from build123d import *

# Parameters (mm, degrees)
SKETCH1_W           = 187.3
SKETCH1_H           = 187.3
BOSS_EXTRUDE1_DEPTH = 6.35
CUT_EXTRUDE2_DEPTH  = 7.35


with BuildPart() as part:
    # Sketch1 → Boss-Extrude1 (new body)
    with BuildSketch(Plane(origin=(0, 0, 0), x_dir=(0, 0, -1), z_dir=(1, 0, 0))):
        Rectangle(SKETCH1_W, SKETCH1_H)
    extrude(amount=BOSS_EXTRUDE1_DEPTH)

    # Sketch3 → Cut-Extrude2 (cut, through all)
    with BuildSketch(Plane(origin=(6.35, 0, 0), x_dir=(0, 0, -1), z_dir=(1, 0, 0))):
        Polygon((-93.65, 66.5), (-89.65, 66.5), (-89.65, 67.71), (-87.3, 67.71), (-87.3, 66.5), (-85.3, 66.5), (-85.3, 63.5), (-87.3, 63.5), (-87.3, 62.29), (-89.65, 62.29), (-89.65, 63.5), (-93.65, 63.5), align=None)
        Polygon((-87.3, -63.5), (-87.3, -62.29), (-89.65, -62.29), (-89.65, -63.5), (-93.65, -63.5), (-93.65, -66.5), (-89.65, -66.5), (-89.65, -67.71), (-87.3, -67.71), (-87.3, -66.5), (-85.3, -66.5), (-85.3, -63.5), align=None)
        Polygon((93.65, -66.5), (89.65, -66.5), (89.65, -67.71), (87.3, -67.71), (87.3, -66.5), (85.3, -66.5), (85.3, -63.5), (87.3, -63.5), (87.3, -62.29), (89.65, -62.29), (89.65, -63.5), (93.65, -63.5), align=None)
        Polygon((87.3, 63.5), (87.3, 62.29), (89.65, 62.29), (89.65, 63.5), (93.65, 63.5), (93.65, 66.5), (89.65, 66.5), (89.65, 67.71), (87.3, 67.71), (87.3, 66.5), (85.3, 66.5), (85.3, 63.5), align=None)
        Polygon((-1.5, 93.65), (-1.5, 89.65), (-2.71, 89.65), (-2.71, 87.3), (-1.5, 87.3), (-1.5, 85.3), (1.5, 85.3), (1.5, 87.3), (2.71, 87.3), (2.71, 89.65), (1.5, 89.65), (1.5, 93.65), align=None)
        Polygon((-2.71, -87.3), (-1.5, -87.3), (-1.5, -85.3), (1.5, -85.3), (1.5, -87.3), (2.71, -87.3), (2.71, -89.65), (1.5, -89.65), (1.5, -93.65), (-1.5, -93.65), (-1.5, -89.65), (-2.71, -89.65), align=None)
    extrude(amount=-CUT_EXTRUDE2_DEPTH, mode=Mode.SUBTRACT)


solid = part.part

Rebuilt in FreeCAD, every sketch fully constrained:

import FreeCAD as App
import Part
import Sketcher
from FreeCAD import Vector
Q = App.Units.Quantity

doc = App.newDocument("Part")
body = doc.addObject("PartDesign::Body", "Body")

sketch1 = body.newObject("Sketcher::SketchObject", "Sketch")
sketch1.AttachmentSupport = (doc.getObject("YZ_Plane"), [""])
sketch1.MapMode = "FlatFace"
sketch1.addGeometry(Part.LineSegment(Vector(93.65, 93.65, 0), Vector(-93.65, 93.65, 0)), False)
sketch1.addGeometry(Part.LineSegment(Vector(-93.65, 93.65, 0), Vector(-93.65, -93.65, 0)), False)
sketch1.addGeometry(Part.LineSegment(Vector(-93.65, -93.65, 0), Vector(93.65, -93.65, 0)), False)
sketch1.addGeometry(Part.LineSegment(Vector(93.65, -93.65, 0), Vector(93.65, 93.65, 0)), False)
sketch1.addConstraint(Sketcher.Constraint("Coincident", 0, 2, 1, 1))
sketch1.addConstraint(Sketcher.Constraint("Coincident", 1, 2, 2, 1))
sketch1.addConstraint(Sketcher.Constraint("Coincident", 2, 2, 3, 1))
sketch1.addConstraint(Sketcher.Constraint("Coincident", 3, 2, 0, 1))
sketch1.addConstraint(Sketcher.Constraint("Horizontal", 0))
sketch1.addConstraint(Sketcher.Constraint("Vertical", 1))
sketch1.addConstraint(Sketcher.Constraint("Horizontal", 2))
sketch1.addConstraint(Sketcher.Constraint("Vertical", 3))
sketch1.addConstraint(Sketcher.Constraint("Symmetric", 0, 2, 2, 2, -1, 1))
sketch1.addConstraint(Sketcher.Constraint("Equal", 2, 1))
sketch1.addConstraint(Sketcher.Constraint("DistanceX", 0, 2, 0, 1, Q("187.3 mm")))
pad1 = body.newObject("PartDesign::Pad", "Pad")
pad1.Profile = sketch1
pad1.Length = 6.35

sketch2 = body.newObject("Sketcher::SketchObject", "Sketch001")
sketch2.AttachmentSupport = (doc.getObject("YZ_Plane"), [""])
sketch2.MapMode = "FlatFace"
sketch2.AttachmentOffset = App.Placement(Vector(0, 0, 6.35), App.Rotation())
sketch2.addGeometry(Part.LineSegment(Vector(66.5, 89.65, 0), Vector(66.5, 93.65, 0)), False)
sketch2.addGeometry(Part.LineSegment(Vector(66.5, 93.65, 0), Vector(63.5, 93.65, 0)), False)
sketch2.addGeometry(Part.LineSegment(Vector(63.5, 93.65, 0), Vector(63.5, 89.65, 0)), False)
sketch2.addGeometry(Part.LineSegment(Vector(63.5, 89.65, 0), Vector(62.29, 89.65, 0)), False)
sketch2.addGeometry(Part.LineSegment(Vector(62.29, 89.65, 0), Vector(62.29, 87.3, 0)), False)
sketch2.addGeometry(Part.LineSegment(Vector(62.29, 87.3, 0), Vector(63.5, 87.3, 0)), False)
sketch2.addGeometry(Part.LineSegment(Vector(63.5, 87.3, 0), Vector(63.5, 85.3, 0)), False)
sketch2.addGeometry(Part.LineSegment(Vector(63.5, 85.3, 0), Vector(66.5, 85.3, 0)), False)
sketch2.addGeometry(Part.LineSegment(Vector(66.5, 85.3, 0), Vector(66.5, 87.3, 0)), False)
sketch2.addGeometry(Part.LineSegment(Vector(66.5, 87.3, 0), Vector(67.71, 87.3, 0)), False)
sketch2.addGeometry(Part.LineSegment(Vector(67.71, 87.3, 0), Vector(67.71, 89.65, 0)), False)
sketch2.addGeometry(Part.LineSegment(Vector(67.71, 89.65, 0), Vector(66.5, 89.65, 0)), False)
sketch2.addGeometry(Part.LineSegment(Vector(-63.5, 87.3, 0), Vector(-62.29, 87.3, 0)), False)
sketch2.addGeometry(Part.LineSegment(Vector(-62.29, 87.3, 0), Vector(-62.29, 89.65, 0)), False)
sketch2.addGeometry(Part.LineSegment(Vector(-62.29, 89.65, 0), Vector(-63.5, 89.65, 0)), False)
sketch2.addGeometry(Part.LineSegment(Vector(-63.5, 89.65, 0), Vector(-63.5, 93.65, 0)), False)
sketch2.addGeometry(Part.LineSegment(Vector(-63.5, 93.65, 0), Vector(-66.5, 93.65, 0)), False)
sketch2.addGeometry(Part.LineSegment(Vector(-66.5, 93.65, 0), Vector(-66.5, 89.65, 0)), False)
sketch2.addGeometry(Part.LineSegment(Vector(-66.5, 89.65, 0), Vector(-67.71, 89.65, 0)), False)
sketch2.addGeometry(Part.LineSegment(Vector(-67.71, 89.65, 0), Vector(-67.71, 87.3, 0)), False)
sketch2.addGeometry(Part.LineSegment(Vector(-67.71, 87.3, 0), Vector(-66.5, 87.3, 0)), False)
sketch2.addGeometry(Part.LineSegment(Vector(-66.5, 87.3, 0), Vector(-66.5, 85.3, 0)), False)
sketch2.addGeometry(Part.LineSegment(Vector(-66.5, 85.3, 0), Vector(-63.5, 85.3, 0)), False)
sketch2.addGeometry(Part.LineSegment(Vector(-63.5, 85.3, 0), Vector(-63.5, 87.3, 0)), False)
sketch2.addGeometry(Part.LineSegment(Vector(-66.5, -89.65, 0), Vector(-66.5, -93.65, 0)), False)
sketch2.addGeometry(Part.LineSegment(Vector(-66.5, -93.65, 0), Vector(-63.5, -93.65, 0)), False)
sketch2.addGeometry(Part.LineSegment(Vector(-63.5, -93.65, 0), Vector(-63.5, -89.65, 0)), False)
sketch2.addGeometry(Part.LineSegment(Vector(-63.5, -89.65, 0), Vector(-62.29, -89.65, 0)), False)
sketch2.addGeometry(Part.LineSegment(Vector(-62.29, -89.65, 0), Vector(-62.29, -87.3, 0)), False)
sketch2.addGeometry(Part.LineSegment(Vector(-62.29, -87.3, 0), Vector(-63.5, -87.3, 0)), False)
sketch2.addGeometry(Part.LineSegment(Vector(-63.5, -87.3, 0), Vector(-63.5, -85.3, 0)), False)
sketch2.addGeometry(Part.LineSegment(Vector(-63.5, -85.3, 0), Vector(-66.5, -85.3, 0)), False)
sketch2.addGeometry(Part.LineSegment(Vector(-66.5, -85.3, 0), Vector(-66.5, -87.3, 0)), False)
sketch2.addGeometry(Part.LineSegment(Vector(-66.5, -87.3, 0), Vector(-67.71, -87.3, 0)), False)
sketch2.addGeometry(Part.LineSegment(Vector(-67.71, -87.3, 0), Vector(-67.71, -89.65, 0)), False)
sketch2.addGeometry(Part.LineSegment(Vector(-67.71, -89.65, 0), Vector(-66.5, -89.65, 0)), False)
sketch2.addGeometry(Part.LineSegment(Vector(63.5, -87.3, 0), Vector(62.29, -87.3, 0)), False)
sketch2.addGeometry(Part.LineSegment(Vector(62.29, -87.3, 0), Vector(62.29, -89.65, 0)), False)
sketch2.addGeometry(Part.LineSegment(Vector(62.29, -89.65, 0), Vector(63.5, -89.65, 0)), False)
sketch2.addGeometry(Part.LineSegment(Vector(63.5, -89.65, 0), Vector(63.5, -93.65, 0)), False)
sketch2.addGeometry(Part.LineSegment(Vector(63.5, -93.65, 0), Vector(66.5, -93.65, 0)), False)
sketch2.addGeometry(Part.LineSegment(Vector(66.5, -93.65, 0), Vector(66.5, -89.65, 0)), False)
sketch2.addGeometry(Part.LineSegment(Vector(66.5, -89.65, 0), Vector(67.71, -89.65, 0)), False)
sketch2.addGeometry(Part.LineSegment(Vector(67.71, -89.65, 0), Vector(67.71, -87.3, 0)), False)
sketch2.addGeometry(Part.LineSegment(Vector(67.71, -87.3, 0), Vector(66.5, -87.3, 0)), False)
sketch2.addGeometry(Part.LineSegment(Vector(66.5, -87.3, 0), Vector(66.5, -85.3, 0)), False)
sketch2.addGeometry(Part.LineSegment(Vector(66.5, -85.3, 0), Vector(63.5, -85.3, 0)), False)
sketch2.addGeometry(Part.LineSegment(Vector(63.5, -85.3, 0), Vector(63.5, -87.3, 0)), False)
sketch2.addGeometry(Part.LineSegment(Vector(93.65, 1.5, 0), Vector(89.65, 1.5, 0)), False)
sketch2.addGeometry(Part.LineSegment(Vector(89.65, 1.5, 0), Vector(89.65, 2.71, 0)), False)
sketch2.addGeometry(Part.LineSegment(Vector(89.65, 2.71, 0), Vector(87.3, 2.71, 0)), False)
sketch2.addGeometry(Part.LineSegment(Vector(87.3, 2.71, 0), Vector(87.3, 1.5, 0)), False)
sketch2.addGeometry(Part.LineSegment(Vector(87.3, 1.5, 0), Vector(85.3, 1.5, 0)), False)
sketch2.addGeometry(Part.LineSegment(Vector(85.3, 1.5, 0), Vector(85.3, -1.5, 0)), False)
sketch2.addGeometry(Part.LineSegment(Vector(85.3, -1.5, 0), Vector(87.3, -1.5, 0)), False)
sketch2.addGeometry(Part.LineSegment(Vector(87.3, -1.5, 0), Vector(87.3, -2.71, 0)), False)
sketch2.addGeometry(Part.LineSegment(Vector(87.3, -2.71, 0), Vector(89.65, -2.71, 0)), False)
sketch2.addGeometry(Part.LineSegment(Vector(89.65, -2.71, 0), Vector(89.65, -1.5, 0)), False)
sketch2.addGeometry(Part.LineSegment(Vector(89.65, -1.5, 0), Vector(93.65, -1.5, 0)), False)
sketch2.addGeometry(Part.LineSegment(Vector(93.65, -1.5, 0), Vector(93.65, 1.5, 0)), False)
sketch2.addGeometry(Part.LineSegment(Vector(-87.3, 1.5, 0), Vector(-87.3, 2.71, 0)), False)
sketch2.addGeometry(Part.LineSegment(Vector(-87.3, 2.71, 0), Vector(-89.65, 2.71, 0)), False)
sketch2.addGeometry(Part.LineSegment(Vector(-89.65, 2.71, 0), Vector(-89.65, 1.5, 0)), False)
sketch2.addGeometry(Part.LineSegment(Vector(-89.65, 1.5, 0), Vector(-93.65, 1.5, 0)), False)
sketch2.addGeometry(Part.LineSegment(Vector(-93.65, 1.5, 0), Vector(-93.65, -1.5, 0)), False)
sketch2.addGeometry(Part.LineSegment(Vector(-93.65, -1.5, 0), Vector(-89.65, -1.5, 0)), False)
sketch2.addGeometry(Part.LineSegment(Vector(-89.65, -1.5, 0), Vector(-89.65, -2.71, 0)), False)
sketch2.addGeometry(Part.LineSegment(Vector(-89.65, -2.71, 0), Vector(-87.3, -2.71, 0)), False)
sketch2.addGeometry(Part.LineSegment(Vector(-87.3, -2.71, 0), Vector(-87.3, -1.5, 0)), False)
sketch2.addGeometry(Part.LineSegment(Vector(-87.3, -1.5, 0), Vector(-85.3, -1.5, 0)), False)
sketch2.addGeometry(Part.LineSegment(Vector(-85.3, -1.5, 0), Vector(-85.3, 1.5, 0)), False)
sketch2.addGeometry(Part.LineSegment(Vector(-85.3, 1.5, 0), Vector(-87.3, 1.5, 0)), False)
sketch2.addConstraint(Sketcher.Constraint("Coincident", 0, 2, 1, 1))
sketch2.addConstraint(Sketcher.Constraint("Coincident", 1, 2, 2, 1))
sketch2.addConstraint(Sketcher.Constraint("Coincident", 2, 2, 3, 1))
sketch2.addConstraint(Sketcher.Constraint("Coincident", 3, 2, 4, 1))
sketch2.addConstraint(Sketcher.Constraint("Coincident", 4, 2, 5, 1))
sketch2.addConstraint(Sketcher.Constraint("Coincident", 5, 2, 6, 1))
sketch2.addConstraint(Sketcher.Constraint("Coincident", 6, 2, 7, 1))
sketch2.addConstraint(Sketcher.Constraint("Coincident", 7, 2, 8, 1))
sketch2.addConstraint(Sketcher.Constraint("Coincident", 8, 2, 9, 1))
sketch2.addConstraint(Sketcher.Constraint("Coincident", 9, 2, 10, 1))
sketch2.addConstraint(Sketcher.Constraint("Coincident", 10, 2, 11, 1))
sketch2.addConstraint(Sketcher.Constraint("Coincident", 11, 2, 0, 1))
sketch2.addConstraint(Sketcher.Constraint("Coincident", 12, 2, 13, 1))
sketch2.addConstraint(Sketcher.Constraint("Coincident", 13, 2, 14, 1))
sketch2.addConstraint(Sketcher.Constraint("Coincident", 14, 2, 15, 1))
sketch2.addConstraint(Sketcher.Constraint("Coincident", 15, 2, 16, 1))
sketch2.addConstraint(Sketcher.Constraint("Coincident", 16, 2, 17, 1))
sketch2.addConstraint(Sketcher.Constraint("Coincident", 17, 2, 18, 1))
sketch2.addConstraint(Sketcher.Constraint("Coincident", 18, 2, 19, 1))
sketch2.addConstraint(Sketcher.Constraint("Coincident", 19, 2, 20, 1))
sketch2.addConstraint(Sketcher.Constraint("Coincident", 20, 2, 21, 1))
sketch2.addConstraint(Sketcher.Constraint("Coincident", 21, 2, 22, 1))
sketch2.addConstraint(Sketcher.Constraint("Coincident", 22, 2, 23, 1))
sketch2.addConstraint(Sketcher.Constraint("Coincident", 23, 2, 12, 1))
sketch2.addConstraint(Sketcher.Constraint("Coincident", 24, 2, 25, 1))
sketch2.addConstraint(Sketcher.Constraint("Coincident", 25, 2, 26, 1))
sketch2.addConstraint(Sketcher.Constraint("Coincident", 26, 2, 27, 1))
sketch2.addConstraint(Sketcher.Constraint("Coincident", 27, 2, 28, 1))
sketch2.addConstraint(Sketcher.Constraint("Coincident", 28, 2, 29, 1))
sketch2.addConstraint(Sketcher.Constraint("Coincident", 29, 2, 30, 1))
sketch2.addConstraint(Sketcher.Constraint("Coincident", 30, 2, 31, 1))
sketch2.addConstraint(Sketcher.Constraint("Coincident", 31, 2, 32, 1))
sketch2.addConstraint(Sketcher.Constraint("Coincident", 32, 2, 33, 1))
sketch2.addConstraint(Sketcher.Constraint("Coincident", 33, 2, 34, 1))
sketch2.addConstraint(Sketcher.Constraint("Coincident", 34, 2, 35, 1))
sketch2.addConstraint(Sketcher.Constraint("Coincident", 35, 2, 24, 1))
sketch2.addConstraint(Sketcher.Constraint("Coincident", 36, 2, 37, 1))
sketch2.addConstraint(Sketcher.Constraint("Coincident", 37, 2, 38, 1))
sketch2.addConstraint(Sketcher.Constraint("Coincident", 38, 2, 39, 1))
sketch2.addConstraint(Sketcher.Constraint("Coincident", 39, 2, 40, 1))
sketch2.addConstraint(Sketcher.Constraint("Coincident", 40, 2, 41, 1))
sketch2.addConstraint(Sketcher.Constraint("Coincident", 41, 2, 42, 1))
sketch2.addConstraint(Sketcher.Constraint("Coincident", 42, 2, 43, 1))
sketch2.addConstraint(Sketcher.Constraint("Coincident", 43, 2, 44, 1))
sketch2.addConstraint(Sketcher.Constraint("Coincident", 44, 2, 45, 1))
sketch2.addConstraint(Sketcher.Constraint("Coincident", 45, 2, 46, 1))
sketch2.addConstraint(Sketcher.Constraint("Coincident", 46, 2, 47, 1))
sketch2.addConstraint(Sketcher.Constraint("Coincident", 47, 2, 36, 1))
sketch2.addConstraint(Sketcher.Constraint("Coincident", 48, 2, 49, 1))
sketch2.addConstraint(Sketcher.Constraint("Coincident", 49, 2, 50, 1))
sketch2.addConstraint(Sketcher.Constraint("Coincident", 50, 2, 51, 1))
sketch2.addConstraint(Sketcher.Constraint("Coincident", 51, 2, 52, 1))
sketch2.addConstraint(Sketcher.Constraint("Coincident", 52, 2, 53, 1))
sketch2.addConstraint(Sketcher.Constraint("Coincident", 53, 2, 54, 1))
sketch2.addConstraint(Sketcher.Constraint("Coincident", 54, 2, 55, 1))
sketch2.addConstraint(Sketcher.Constraint("Coincident", 55, 2, 56, 1))
sketch2.addConstraint(Sketcher.Constraint("Coincident", 56, 2, 57, 1))
sketch2.addConstraint(Sketcher.Constraint("Coincident", 57, 2, 58, 1))
sketch2.addConstraint(Sketcher.Constraint("Coincident", 58, 2, 59, 1))
sketch2.addConstraint(Sketcher.Constraint("Coincident", 59, 2, 48, 1))
sketch2.addConstraint(Sketcher.Constraint("Coincident", 60, 2, 61, 1))
sketch2.addConstraint(Sketcher.Constraint("Coincident", 61, 2, 62, 1))
sketch2.addConstraint(Sketcher.Constraint("Coincident", 62, 2, 63, 1))
sketch2.addConstraint(Sketcher.Constraint("Coincident", 63, 2, 64, 1))
sketch2.addConstraint(Sketcher.Constraint("Coincident", 64, 2, 65, 1))
sketch2.addConstraint(Sketcher.Constraint("Coincident", 65, 2, 66, 1))
sketch2.addConstraint(Sketcher.Constraint("Coincident", 66, 2, 67, 1))
sketch2.addConstraint(Sketcher.Constraint("Coincident", 67, 2, 68, 1))
sketch2.addConstraint(Sketcher.Constraint("Coincident", 68, 2, 69, 1))
sketch2.addConstraint(Sketcher.Constraint("Coincident", 69, 2, 70, 1))
sketch2.addConstraint(Sketcher.Constraint("Coincident", 70, 2, 71, 1))
sketch2.addConstraint(Sketcher.Constraint("Coincident", 71, 2, 60, 1))
sketch2.addConstraint(Sketcher.Constraint("Vertical", 0))
sketch2.addConstraint(Sketcher.Constraint("Horizontal", 1))
sketch2.addConstraint(Sketcher.Constraint("Vertical", 2))
sketch2.addConstraint(Sketcher.Constraint("Horizontal", 3))
sketch2.addConstraint(Sketcher.Constraint("Vertical", 4))
sketch2.addConstraint(Sketcher.Constraint("Horizontal", 5))
sketch2.addConstraint(Sketcher.Constraint("Vertical", 6))
sketch2.addConstraint(Sketcher.Constraint("Horizontal", 7))
sketch2.addConstraint(Sketcher.Constraint("Vertical", 8))
sketch2.addConstraint(Sketcher.Constraint("Horizontal", 9))
sketch2.addConstraint(Sketcher.Constraint("Vertical", 10))
sketch2.addConstraint(Sketcher.Constraint("Horizontal", 11))
sketch2.addConstraint(Sketcher.Constraint("Horizontal", 12))
sketch2.addConstraint(Sketcher.Constraint("Vertical", 13))
sketch2.addConstraint(Sketcher.Constraint("Horizontal", 14))
sketch2.addConstraint(Sketcher.Constraint("Vertical", 15))
sketch2.addConstraint(Sketcher.Constraint("Horizontal", 16))
sketch2.addConstraint(Sketcher.Constraint("Vertical", 17))
sketch2.addConstraint(Sketcher.Constraint("Horizontal", 18))
sketch2.addConstraint(Sketcher.Constraint("Vertical", 19))
sketch2.addConstraint(Sketcher.Constraint("Horizontal", 20))
sketch2.addConstraint(Sketcher.Constraint("Vertical", 21))
sketch2.addConstraint(Sketcher.Constraint("Horizontal", 22))
sketch2.addConstraint(Sketcher.Constraint("Vertical", 23))
sketch2.addConstraint(Sketcher.Constraint("Vertical", 24))
sketch2.addConstraint(Sketcher.Constraint("Horizontal", 25))
sketch2.addConstraint(Sketcher.Constraint("Vertical", 26))
sketch2.addConstraint(Sketcher.Constraint("Horizontal", 27))
sketch2.addConstraint(Sketcher.Constraint("Vertical", 28))
sketch2.addConstraint(Sketcher.Constraint("Horizontal", 29))
sketch2.addConstraint(Sketcher.Constraint("Vertical", 30))
sketch2.addConstraint(Sketcher.Constraint("Horizontal", 31))
sketch2.addConstraint(Sketcher.Constraint("Vertical", 32))
sketch2.addConstraint(Sketcher.Constraint("Horizontal", 33))
sketch2.addConstraint(Sketcher.Constraint("Vertical", 34))
sketch2.addConstraint(Sketcher.Constraint("Horizontal", 35))
sketch2.addConstraint(Sketcher.Constraint("Horizontal", 36))
sketch2.addConstraint(Sketcher.Constraint("Vertical", 37))
sketch2.addConstraint(Sketcher.Constraint("Horizontal", 38))
sketch2.addConstraint(Sketcher.Constraint("Vertical", 39))
sketch2.addConstraint(Sketcher.Constraint("Horizontal", 40))
sketch2.addConstraint(Sketcher.Constraint("Vertical", 41))
sketch2.addConstraint(Sketcher.Constraint("Horizontal", 42))
sketch2.addConstraint(Sketcher.Constraint("Vertical", 43))
sketch2.addConstraint(Sketcher.Constraint("Horizontal", 44))
sketch2.addConstraint(Sketcher.Constraint("Vertical", 45))
sketch2.addConstraint(Sketcher.Constraint("Horizontal", 46))
sketch2.addConstraint(Sketcher.Constraint("Vertical", 47))
sketch2.addConstraint(Sketcher.Constraint("Horizontal", 48))
sketch2.addConstraint(Sketcher.Constraint("Vertical", 49))
sketch2.addConstraint(Sketcher.Constraint("Horizontal", 50))
sketch2.addConstraint(Sketcher.Constraint("Vertical", 51))
sketch2.addConstraint(Sketcher.Constraint("Horizontal", 52))
sketch2.addConstraint(Sketcher.Constraint("Vertical", 53))
sketch2.addConstraint(Sketcher.Constraint("Horizontal", 54))
sketch2.addConstraint(Sketcher.Constraint("Vertical", 55))
sketch2.addConstraint(Sketcher.Constraint("Horizontal", 56))
sketch2.addConstraint(Sketcher.Constraint("Vertical", 57))
sketch2.addConstraint(Sketcher.Constraint("Horizontal", 58))
sketch2.addConstraint(Sketcher.Constraint("Vertical", 59))
sketch2.addConstraint(Sketcher.Constraint("Vertical", 60))
sketch2.addConstraint(Sketcher.Constraint("Horizontal", 61))
sketch2.addConstraint(Sketcher.Constraint("Vertical", 62))
sketch2.addConstraint(Sketcher.Constraint("Horizontal", 63))
sketch2.addConstraint(Sketcher.Constraint("Vertical", 64))
sketch2.addConstraint(Sketcher.Constraint("Horizontal", 65))
sketch2.addConstraint(Sketcher.Constraint("Vertical", 66))
sketch2.addConstraint(Sketcher.Constraint("Horizontal", 67))
sketch2.addConstraint(Sketcher.Constraint("Vertical", 68))
sketch2.addConstraint(Sketcher.Constraint("Horizontal", 69))
sketch2.addConstraint(Sketcher.Constraint("Vertical", 70))
sketch2.addConstraint(Sketcher.Constraint("Horizontal", 71))
sketch2.addConstraint(Sketcher.Constraint("Symmetric", 0, 2, 24, 2, -1, 1))
sketch2.addConstraint(Sketcher.Constraint("Symmetric", 2, 2, 26, 2, -1, 1))
sketch2.addConstraint(Sketcher.Constraint("Symmetric", 4, 2, 28, 2, -1, 1))
sketch2.addConstraint(Sketcher.Constraint("Symmetric", 6, 2, 30, 2, -1, 1))
sketch2.addConstraint(Sketcher.Constraint("Symmetric", 8, 2, 32, 2, -1, 1))
sketch2.addConstraint(Sketcher.Constraint("Symmetric", 10, 2, 34, 2, -1, 1))
sketch2.addConstraint(Sketcher.Constraint("Symmetric", 12, 2, 36, 2, -1, 1))
sketch2.addConstraint(Sketcher.Constraint("Symmetric", 14, 2, 38, 2, -1, 1))
sketch2.addConstraint(Sketcher.Constraint("Symmetric", 16, 2, 40, 2, -1, 1))
sketch2.addConstraint(Sketcher.Constraint("Symmetric", 18, 2, 42, 2, -1, 1))
sketch2.addConstraint(Sketcher.Constraint("Symmetric", 20, 2, 44, 2, -1, 1))
sketch2.addConstraint(Sketcher.Constraint("Symmetric", 22, 2, 46, 2, -1, 1))
sketch2.addConstraint(Sketcher.Constraint("Symmetric", 55, 2, 60, 2, -1, 1))
sketch2.addConstraint(Sketcher.Constraint("Symmetric", 57, 2, 62, 2, -1, 1))
sketch2.addConstraint(Sketcher.Constraint("Symmetric", 59, 2, 64, 2, -1, 1))
sketch2.addConstraint(Sketcher.Constraint("Symmetric", 49, 2, 66, 2, -1, 1))
sketch2.addConstraint(Sketcher.Constraint("Symmetric", 51, 2, 68, 2, -1, 1))
sketch2.addConstraint(Sketcher.Constraint("Symmetric", 53, 2, 70, 2, -1, 1))
sketch2.addConstraint(Sketcher.Constraint("Symmetric", 4, 2, 12, 2, -2))
sketch2.addConstraint(Sketcher.Constraint("Symmetric", 2, 2, 14, 2, -2))
sketch2.addConstraint(Sketcher.Constraint("Symmetric", 0, 2, 16, 2, -2))
sketch2.addConstraint(Sketcher.Constraint("Symmetric", 10, 2, 18, 2, -2))
sketch2.addConstraint(Sketcher.Constraint("Symmetric", 8, 2, 20, 2, -2))
sketch2.addConstraint(Sketcher.Constraint("Symmetric", 6, 2, 22, 2, -2))
sketch2.addConstraint(Sketcher.Constraint("Symmetric", 50, 2, 60, 2, -2))
sketch2.addConstraint(Sketcher.Constraint("Symmetric", 48, 2, 62, 2, -2))
sketch2.addConstraint(Sketcher.Constraint("Horizontal", 5, 2, 8, 2))
sketch2.addConstraint(Sketcher.Constraint("Horizontal", 3, 2, 10, 2))
sketch2.addConstraint(Sketcher.Constraint("Horizontal", 48, 2, 51, 2))
sketch2.addConstraint(Sketcher.Constraint("Horizontal", 54, 2, 57, 2))
sketch2.addConstraint(Sketcher.Constraint("Vertical", 2, 2, 5, 2))
sketch2.addConstraint(Sketcher.Constraint("Vertical", 0, 2, 7, 2))
sketch2.addConstraint(Sketcher.Constraint("Equal", 5, 9))
sketch2.addConstraint(Sketcher.Constraint("Equal", 65, 0))
sketch2.addConstraint(Sketcher.Constraint("Equal", 67, 4))
sketch2.addConstraint(Sketcher.Constraint("Equal", 71, 6))
sketch2.addConstraint(Sketcher.Constraint("Equal", 44, 49))
sketch2.addConstraint(Sketcher.Constraint("Equal", 46, 53))
sketch2.addConstraint(Sketcher.Constraint("DistanceX", 1, 2, 1, 1, Q("3 mm")))
sketch2.addConstraint(Sketcher.Constraint("DistanceX", 48, 2, 48, 1, Q("4 mm")))
sketch2.addConstraint(Sketcher.Constraint("DistanceX", 52, 2, 52, 1, Q("2 mm")))
sketch2.addConstraint(Sketcher.Constraint("DistanceX", 3, 2, 3, 1, Q("1.21 mm")))
sketch2.addConstraint(Sketcher.Constraint("DistanceX", 50, 2, 50, 1, Q("2.35 mm")))
sketch2.addConstraint(Sketcher.Constraint("DistanceX", -1, 1, 0, 2, Q("66.5 mm")))
sketch2.addConstraint(Sketcher.Constraint("DistanceY", -1, 1, 4, 2, Q("87.3 mm")))
sketch2.addConstraint(Sketcher.Constraint("DistanceX", -1, 1, 50, 2, Q("87.3 mm")))
pocket1 = body.newObject("PartDesign::Pocket", "Pocket")
pocket1.Profile = sketch2
pocket1.Type = "ThroughAll"

doc.recompute()
